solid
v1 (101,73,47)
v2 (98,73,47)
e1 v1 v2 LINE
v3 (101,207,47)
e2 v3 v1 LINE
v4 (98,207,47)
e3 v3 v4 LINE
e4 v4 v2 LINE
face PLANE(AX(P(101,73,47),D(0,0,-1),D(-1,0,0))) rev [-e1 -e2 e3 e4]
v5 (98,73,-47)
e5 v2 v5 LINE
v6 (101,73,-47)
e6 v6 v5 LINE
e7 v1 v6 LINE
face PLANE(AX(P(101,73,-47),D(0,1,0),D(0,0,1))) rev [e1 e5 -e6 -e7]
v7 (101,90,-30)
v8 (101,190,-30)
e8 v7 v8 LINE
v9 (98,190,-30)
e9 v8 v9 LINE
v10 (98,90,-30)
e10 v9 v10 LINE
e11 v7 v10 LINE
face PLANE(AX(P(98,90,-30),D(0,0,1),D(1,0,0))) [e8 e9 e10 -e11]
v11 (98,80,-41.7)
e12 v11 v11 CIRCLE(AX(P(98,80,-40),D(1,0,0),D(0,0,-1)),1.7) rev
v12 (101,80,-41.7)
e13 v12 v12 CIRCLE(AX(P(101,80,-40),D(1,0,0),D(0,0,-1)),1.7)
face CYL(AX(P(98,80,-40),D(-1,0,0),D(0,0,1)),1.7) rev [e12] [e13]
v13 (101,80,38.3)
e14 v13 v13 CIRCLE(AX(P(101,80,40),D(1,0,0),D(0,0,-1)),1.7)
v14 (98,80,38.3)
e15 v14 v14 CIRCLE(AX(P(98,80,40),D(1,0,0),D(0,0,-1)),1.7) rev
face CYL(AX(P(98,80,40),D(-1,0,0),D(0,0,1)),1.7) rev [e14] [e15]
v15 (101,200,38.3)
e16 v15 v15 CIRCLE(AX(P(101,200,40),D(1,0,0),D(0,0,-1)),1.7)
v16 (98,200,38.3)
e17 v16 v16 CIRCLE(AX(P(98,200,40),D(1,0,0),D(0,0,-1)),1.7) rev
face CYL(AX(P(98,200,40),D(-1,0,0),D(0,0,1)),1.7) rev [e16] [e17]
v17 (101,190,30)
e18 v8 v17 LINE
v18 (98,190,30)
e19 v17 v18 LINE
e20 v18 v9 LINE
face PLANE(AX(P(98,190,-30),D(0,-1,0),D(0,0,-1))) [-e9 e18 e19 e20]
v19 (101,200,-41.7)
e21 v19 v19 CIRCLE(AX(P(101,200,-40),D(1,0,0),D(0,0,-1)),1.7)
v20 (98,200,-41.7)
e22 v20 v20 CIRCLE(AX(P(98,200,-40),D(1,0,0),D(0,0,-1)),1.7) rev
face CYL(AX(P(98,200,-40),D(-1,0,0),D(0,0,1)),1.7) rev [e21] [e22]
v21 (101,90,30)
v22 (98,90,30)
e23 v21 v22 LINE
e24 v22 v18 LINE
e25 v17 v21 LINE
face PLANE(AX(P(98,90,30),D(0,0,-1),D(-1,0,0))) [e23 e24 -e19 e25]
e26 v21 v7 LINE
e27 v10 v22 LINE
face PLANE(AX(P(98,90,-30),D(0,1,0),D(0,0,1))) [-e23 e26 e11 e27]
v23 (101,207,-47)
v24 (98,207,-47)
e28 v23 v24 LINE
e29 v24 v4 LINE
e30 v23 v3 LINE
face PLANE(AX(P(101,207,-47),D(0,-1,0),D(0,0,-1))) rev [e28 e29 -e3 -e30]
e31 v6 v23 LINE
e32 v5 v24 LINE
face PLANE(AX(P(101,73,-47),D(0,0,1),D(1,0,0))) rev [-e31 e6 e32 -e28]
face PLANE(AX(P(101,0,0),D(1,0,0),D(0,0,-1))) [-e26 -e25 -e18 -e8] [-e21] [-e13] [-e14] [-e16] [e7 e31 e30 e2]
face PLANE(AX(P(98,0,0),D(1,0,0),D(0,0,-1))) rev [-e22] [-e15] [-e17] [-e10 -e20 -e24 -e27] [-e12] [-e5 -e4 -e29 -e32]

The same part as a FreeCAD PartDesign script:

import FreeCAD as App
import Part
import Sketcher

doc = App.newDocument("Part")
body = doc.addObject("PartDesign::Body", "Body")

# Sketch on YZ plane
sketch1 = body.newObject("Sketcher::SketchObject", "Sketch")
sketch1.AttachmentSupport = (doc.getObject("YZ_Plane"), [""])
sketch1.MapMode = "FlatFace"
sketch1.AttachmentOffset = App.Placement(App.Vector(0, 0, 98), App.Rotation())
sketch1.addGeometry([
    Part.LineSegment(App.Vector(207, 47, 0), App.Vector(73, 47, 0)),
    Part.LineSegment(App.Vector(73, 47, 0), App.Vector(73, -47, 0)),
    Part.LineSegment(App.Vector(73, -47, 0), App.Vector(207, -47, 0)),
    Part.LineSegment(App.Vector(207, -47, 0), App.Vector(207, 47, 0)),
], False)
sketch1.addConstraint([
    Sketcher.Constraint("Coincident", 0, 2, 1, 1),
    Sketcher.Constraint("Coincident", 1, 2, 2, 1),
    Sketcher.Constraint("Coincident", 2, 2, 3, 1),
    Sketcher.Constraint("Coincident", 3, 2, 0, 1),
    Sketcher.Constraint("Horizontal", 0),
    Sketcher.Constraint("Vertical", 1),
    Sketcher.Constraint("Horizontal", 2),
    Sketcher.Constraint("Vertical", 3),
    Sketcher.Constraint("DistanceX", 0, 2, 0, 1, 134.0),
    Sketcher.Constraint("DistanceY", 1, 2, 1, 1, 94.0),
    Sketcher.Constraint("DistanceX", -1, 1, 0, 2, 73.0),
    Sketcher.Constraint("DistanceY", -1, 1, 0, 2, 47.0),
])
pad1 = body.newObject("PartDesign::Pad", "Pad")
pad1.Profile = sketch1
pad1.Length = 3

# Sketch on YZ plane
sketch2 = body.newObject("Sketcher::SketchObject", "Sketch001")
sketch2.AttachmentSupport = (doc.getObject("YZ_Plane"), [""])
sketch2.MapMode = "FlatFace"
sketch2.addGeometry([
    Part.Circle(App.Vector(80, -40, 0), App.Vector(0, 0, 1), 1.7),  # 0
    Part.Circle(App.Vector(80, 40, 0), App.Vector(0, 0, 1), 1.7),  # 1
    Part.Circle(App.Vector(200, -40, 0), App.Vector(0, 0, 1), 1.7),  # 2
    Part.Circle(App.Vector(200, 40, 0), App.Vector(0, 0, 1), 1.7),  # 3
    Part.LineSegment(App.Vector(190, 30, 0), App.Vector(90, 30, 0)),  # 4
    Part.LineSegment(App.Vector(90, 30, 0), App.Vector(90, -30, 0)),  # 5
    Part.LineSegment(App.Vector(90, -30, 0), App.Vector(190, -30, 0)),  # 6
    Part.LineSegment(App.Vector(190, -30, 0), App.Vector(190, 30, 0)),  # 7
], False)
sketch2.addConstraint([
    Sketcher.Constraint("Coincident", 4, 2, 5, 1),
    Sketcher.Constraint("Coincident", 5, 2, 6, 1),
    Sketcher.Constraint("Coincident", 6, 2, 7, 1),
    Sketcher.Constraint("Coincident", 7, 2, 4, 1),
    Sketcher.Constraint("Horizontal", 4),
    Sketcher.Constraint("Vertical", 5),
    Sketcher.Constraint("Horizontal", 6),
    Sketcher.Constraint("Vertical", 7),
    Sketcher.Constraint("Equal", 0, 1),
    Sketcher.Constraint("Equal", 1, 2),
    Sketcher.Constraint("Equal", 2, 3),
    Sketcher.Constraint("Symmetric", 0, 3, 1, 3, -1),
    Sketcher.Constraint("Symmetric", 2, 3, 3, 3, -1),
    Sketcher.Constraint("Horizontal", 0, 3, 2, 3),
    Sketcher.Constraint("Diameter", 0, 3.4),
    Sketcher.Constraint("DistanceX", 4, 2, 4, 1, 100.0),
    Sketcher.Constraint("DistanceY", 5, 2, 5, 1, 60.0),
    Sketcher.Constraint("DistanceX", -1, 1, 0, 3, 80.0),
    Sketcher.Constraint("DistanceY", 0, 3, -1, 1, 40.0),
    Sketcher.Constraint("DistanceX", -1, 1, 2, 3, 200.0),
    Sketcher.Constraint("DistanceX", -1, 1, 4, 2, 90.0),
    Sketcher.Constraint("DistanceY", -1, 1, 4, 2, 30.0),
])
pocket1 = body.newObject("PartDesign::Pocket", "Pocket")
pocket1.Profile = sketch2
pocket1.Type = "ThroughAll"
pocket1.Midplane = True

doc.recompute()
